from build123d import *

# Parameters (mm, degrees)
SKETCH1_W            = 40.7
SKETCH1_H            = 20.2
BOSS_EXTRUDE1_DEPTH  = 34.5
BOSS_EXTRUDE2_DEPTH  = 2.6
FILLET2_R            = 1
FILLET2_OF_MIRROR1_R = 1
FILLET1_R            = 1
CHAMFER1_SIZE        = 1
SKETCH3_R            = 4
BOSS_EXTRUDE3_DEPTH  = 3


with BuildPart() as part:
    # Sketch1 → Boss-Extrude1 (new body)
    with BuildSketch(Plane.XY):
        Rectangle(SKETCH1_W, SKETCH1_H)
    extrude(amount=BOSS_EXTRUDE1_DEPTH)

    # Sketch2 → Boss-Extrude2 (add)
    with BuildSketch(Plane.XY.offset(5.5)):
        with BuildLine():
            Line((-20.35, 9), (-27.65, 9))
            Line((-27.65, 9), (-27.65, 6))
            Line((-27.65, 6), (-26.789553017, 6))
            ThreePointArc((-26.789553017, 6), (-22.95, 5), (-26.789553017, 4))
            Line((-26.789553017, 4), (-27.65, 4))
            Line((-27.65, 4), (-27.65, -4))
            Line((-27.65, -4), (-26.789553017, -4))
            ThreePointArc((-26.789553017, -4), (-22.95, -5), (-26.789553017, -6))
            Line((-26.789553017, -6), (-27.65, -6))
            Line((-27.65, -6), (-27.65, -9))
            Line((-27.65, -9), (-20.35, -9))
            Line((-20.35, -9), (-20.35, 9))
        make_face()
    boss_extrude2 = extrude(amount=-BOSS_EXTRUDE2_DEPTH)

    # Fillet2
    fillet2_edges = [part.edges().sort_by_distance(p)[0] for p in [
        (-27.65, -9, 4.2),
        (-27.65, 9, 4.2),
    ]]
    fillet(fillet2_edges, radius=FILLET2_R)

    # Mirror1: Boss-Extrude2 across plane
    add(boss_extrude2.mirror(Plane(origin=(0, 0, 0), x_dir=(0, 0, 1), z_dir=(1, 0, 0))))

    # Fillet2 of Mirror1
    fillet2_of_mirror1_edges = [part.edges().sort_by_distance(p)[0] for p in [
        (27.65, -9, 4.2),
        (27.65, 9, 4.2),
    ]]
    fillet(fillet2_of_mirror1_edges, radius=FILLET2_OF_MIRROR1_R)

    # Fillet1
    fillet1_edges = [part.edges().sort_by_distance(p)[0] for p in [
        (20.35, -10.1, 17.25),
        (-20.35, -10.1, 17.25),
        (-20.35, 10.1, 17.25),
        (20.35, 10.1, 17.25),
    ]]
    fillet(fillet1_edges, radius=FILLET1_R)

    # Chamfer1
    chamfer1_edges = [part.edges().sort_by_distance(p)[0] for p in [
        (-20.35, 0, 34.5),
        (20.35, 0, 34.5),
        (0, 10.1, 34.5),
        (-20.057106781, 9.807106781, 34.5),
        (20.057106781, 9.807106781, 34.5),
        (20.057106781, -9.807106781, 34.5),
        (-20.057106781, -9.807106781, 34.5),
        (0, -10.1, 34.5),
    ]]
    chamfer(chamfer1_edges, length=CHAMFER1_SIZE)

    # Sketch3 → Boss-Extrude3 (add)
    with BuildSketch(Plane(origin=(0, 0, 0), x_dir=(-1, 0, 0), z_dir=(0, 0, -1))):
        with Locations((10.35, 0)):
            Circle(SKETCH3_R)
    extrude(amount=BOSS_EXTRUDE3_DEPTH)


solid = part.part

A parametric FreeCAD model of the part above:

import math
import FreeCAD as App
import Part
import Sketcher

V = App.Vector


def edges_at(feature, points):
    """Names of the edges that pass closest to the given points."""
    edges = feature.Shape.Edges
    near = lambda p: min(range(len(edges)), key=lambda i: edges[i].distToShape(Part.Vertex(*p))[0])
    return sorted({f"Edge{near(p) + 1}" for p in points})

doc = App.newDocument("Part")
body = doc.addObject("PartDesign::Body", "Body")

sketch1 = body.newObject("Sketcher::SketchObject", "Sketch")
sketch1.AttachmentSupport = (doc.getObject("XY_Plane"), [""])
sketch1.MapMode = "FlatFace"
sketch1.addGeometry(Part.LineSegment(V(-20, 10, 0), V(-20, -10, 0)), False)
sketch1.addGeometry(Part.LineSegment(V(-20, -10, 0), V(20, -10, 0)), False)
sketch1.addGeometry(Part.LineSegment(V(20, -10, 0), V(20, 10, 0)), False)
sketch1.addGeometry(Part.LineSegment(V(20, 10, 0), V(-20, 10, 0)), False)
sketch1.addConstraint(Sketcher.Constraint("Coincident", 0, 2, 1, 1))
sketch1.addConstraint(Sketcher.Constraint("Coincident", 1, 2, 2, 1))
sketch1.addConstraint(Sketcher.Constraint("Coincident", 2, 2, 3, 1))
sketch1.addConstraint(Sketcher.Constraint("Coincident", 3, 2, 0, 1))
sketch1.addConstraint(Sketcher.Constraint("Vertical", 0))
sketch1.addConstraint(Sketcher.Constraint("Horizontal", 1))
sketch1.addConstraint(Sketcher.Constraint("Vertical", 2))
sketch1.addConstraint(Sketcher.Constraint("Horizontal", 3))
sketch1.addConstraint(Sketcher.Constraint("Symmetric", 0, 2, 2, 2, -1, 1))
sketch1.addConstraint(Sketcher.Constraint("DistanceX", 1, 1, 1, 2, 40.7))
sketch1.addConstraint(Sketcher.Constraint("DistanceY", 0, 2, 0, 1, 20.2))
pad1 = body.newObject("PartDesign::Pad", "Pad")
pad1.Profile = sketch1
pad1.Length = 34.5

sketch2 = body.newObject("Sketcher::SketchObject", "Sketch001")
sketch2.AttachmentSupport = (doc.getObject("XY_Plane"), [""])
sketch2.MapMode = "FlatFace"
sketch2.AttachmentOffset = App.Placement(V(0, 0, 5.5), App.Rotation())
sketch2.addGeometry(Part.LineSegment(V(-20.4, 9, 0), V(-27.6, 9, 0)), False)
sketch2.addGeometry(Part.LineSegment(V(-27.6, 9, 0), V(-27.6, 6, 0)), False)
sketch2.addGeometry(Part.LineSegment(V(-27.6, 6, 0), V(-26.8, 6, 0)), False)
sketch2.addGeometry(Part.ArcOfCircle(Part.Circle(V(-25, 5, 0), V(0, 0, 1), 2), math.radians(-151), math.radians(151)), False)
sketch2.addGeometry(Part.LineSegment(V(-26.8, 4, 0), V(-27.6, 4, 0)), False)
sketch2.addGeometry(Part.LineSegment(V(-27.6, 4, 0), V(-27.6, -4, 0)), False)
sketch2.addGeometry(Part.LineSegment(V(-27.6, -4, 0), V(-26.8, -4, 0)), False)
sketch2.addGeometry(Part.ArcOfCircle(Part.Circle(V(-25, -5, 0), V(0, 0, 1), 2), math.radians(-151), math.radians(151)), False)
sketch2.addGeometry(Part.LineSegment(V(-26.8, -6, 0), V(-27.6, -6, 0)), False)
sketch2.addGeometry(Part.LineSegment(V(-27.6, -6, 0), V(-27.6, -9, 0)), False)
sketch2.addGeometry(Part.LineSegment(V(-27.6, -9, 0), V(-20.4, -9, 0)), False)
sketch2.addGeometry(Part.LineSegment(V(-20.4, -9, 0), V(-20.4, 9, 0)), False)
sketch2.addConstraint(Sketcher.Constraint("Coincident", 0, 2, 1, 1))
sketch2.addConstraint(Sketcher.Constraint("Coincident", 1, 2, 2, 1))
sketch2.addConstraint(Sketcher.Constraint("Coincident", 2, 2, 3, 2))
sketch2.addConstraint(Sketcher.Constraint("Coincident", 3, 1, 4, 1))
sketch2.addConstraint(Sketcher.Constraint("Coincident", 4, 2, 5, 1))
sketch2.addConstraint(Sketcher.Constraint("Coincident", 5, 2, 6, 1))
sketch2.addConstraint(Sketcher.Constraint("Coincident", 6, 2, 7, 2))
sketch2.addConstraint(Sketcher.Constraint("Coincident", 7, 1, 8, 1))
sketch2.addConstraint(Sketcher.Constraint("Coincident", 8, 2, 9, 1))
sketch2.addConstraint(Sketcher.Constraint("Coincident", 9, 2, 10, 1))
sketch2.addConstraint(Sketcher.Constraint("Coincident", 10, 2, 11, 1))
sketch2.addConstraint(Sketcher.Constraint("Coincident", 11, 2, 0, 1))
sketch2.addConstraint(Sketcher.Constraint("Horizontal", 0))
sketch2.addConstraint(Sketcher.Constraint("Vertical", 1))
sketch2.addConstraint(Sketcher.Constraint("Horizontal", 2))
sketch2.addConstraint(Sketcher.Constraint("Horizontal", 4))
sketch2.addConstraint(Sketcher.Constraint("Vertical", 5))
sketch2.addConstraint(Sketcher.Constraint("Horizontal", 6))
sketch2.addConstraint(Sketcher.Constraint("Horizontal", 8))
sketch2.addConstraint(Sketcher.Constraint("Vertical", 9))
sketch2.addConstraint(Sketcher.Constraint("Horizontal", 10))
sketch2.addConstraint(Sketcher.Constraint("Vertical", 11))
sketch2.addConstraint(Sketcher.Constraint("Equal", 3, 7))
sketch2.addConstraint(Sketcher.Constraint("Symmetric", 3, 3, 7, 3, -1))
sketch2.addConstraint(Sketcher.Constraint("Symmetric", 1, 2, 8, 2, -1))
sketch2.addConstraint(Sketcher.Constraint("Vertical", 2, 2, 3, 1))
sketch2.addConstraint(Sketcher.Constraint("Vertical", 1, 2, 4, 2))
sketch2.addConstraint(Sketcher.Constraint("Vertical", 3, 1, 6, 2))
sketch2.addConstraint(Sketcher.Constraint("Equal", 1, 9))
sketch2.addConstraint(Sketcher.Constraint("DistanceY", 1, 2, 1, 1, 3.0))
sketch2.addConstraint(Sketcher.Constraint("DistanceY", 5, 2, 5, 1, 8.0))
sketch2.addConstraint(Sketcher.Constraint("DistanceY", 11, 1, 11, 2, 18.0))
sketch2.addConstraint(Sketcher.Constraint("Radius", 3, 2.05))
sketch2.addConstraint(Sketcher.Constraint("DistanceX", 0, 2, 0, 1, 7.3))
sketch2.addConstraint(Sketcher.Constraint("DistanceX", 3, 3, -1, 1, 25.0))
sketch2.addConstraint(Sketcher.Constraint("DistanceX", 0, 2, -1, 1, 27.65))
pad2 = body.newObject("PartDesign::Pad", "Pad001")
pad2.Profile = sketch2
pad2.Length = 2.6
pad2.Reversed = True
doc.recompute()

fillet = body.newObject("PartDesign::Fillet", "Fillet")
fillet.Base = (pad2, edges_at(pad2, [(-27.65, -9, 4.2), (-27.65, 9, 4.2)]))
fillet.Radius = 1
doc.recompute()

mirrored = body.newObject("PartDesign::Mirrored", "Mirrored")
mirrored.Originals = [pad2]
mirrored.MirrorPlane = (doc.getObject("YZ_Plane"), [""])
body.Tip = mirrored
doc.recompute()

fillet2 = body.newObject("PartDesign::Fillet", "Fillet001")
fillet2.Base = (mirrored, edges_at(mirrored, [(27.65, -9, 4.2), (27.65, 9, 4.2)]))
fillet2.Radius = 1
doc.recompute()

fillet3 = body.newObject("PartDesign::Fillet", "Fillet002")
fillet3.Base = (fillet2, edges_at(fillet2, [
    (20.35, -10.1, 17.25),
    (-20.35, -10.1, 17.25),
    (-20.35, 10.1, 17.25),
    (20.35, 10.1, 17.25),
]))
fillet3.Radius = 1
doc.recompute()

chamfer = body.newObject("PartDesign::Chamfer", "Chamfer")
chamfer.Base = (fillet3, edges_at(fillet3, [
    (-20.35, 0, 34.5),
    (20.35, 0, 34.5),
    (0, 10.1, 34.5),
    (-20.057, 9.807, 34.5),
    (20.057, 9.807, 34.5),
    (20.057, -9.807, 34.5),
    (-20.057, -9.807, 34.5),
    (0, -10.1, 34.5),
]))
chamfer.Size = 1

sketch3 = body.newObject("Sketcher::SketchObject", "Sketch002")
sketch3.AttachmentSupport = (doc.getObject("XY_Plane"), [""])
sketch3.MapMode = "FlatFace"
sketch3.addGeometry(Part.Circle(V(-10.3, 0, 0), V(0, 0, 1), 4), False)
sketch3.addConstraint(Sketcher.Constraint("PointOnObject", 0, 3, -1))
sketch3.addConstraint(Sketcher.Constraint("Diameter", 0, 8.0))
sketch3.addConstraint(Sketcher.Constraint("DistanceX", 0, 3, -1, 1, 10.35))
pad3 = body.newObject("PartDesign::Pad", "Pad002")
pad3.Profile = sketch3
pad3.Length = 3
pad3.Reversed = True

doc.recompute()
